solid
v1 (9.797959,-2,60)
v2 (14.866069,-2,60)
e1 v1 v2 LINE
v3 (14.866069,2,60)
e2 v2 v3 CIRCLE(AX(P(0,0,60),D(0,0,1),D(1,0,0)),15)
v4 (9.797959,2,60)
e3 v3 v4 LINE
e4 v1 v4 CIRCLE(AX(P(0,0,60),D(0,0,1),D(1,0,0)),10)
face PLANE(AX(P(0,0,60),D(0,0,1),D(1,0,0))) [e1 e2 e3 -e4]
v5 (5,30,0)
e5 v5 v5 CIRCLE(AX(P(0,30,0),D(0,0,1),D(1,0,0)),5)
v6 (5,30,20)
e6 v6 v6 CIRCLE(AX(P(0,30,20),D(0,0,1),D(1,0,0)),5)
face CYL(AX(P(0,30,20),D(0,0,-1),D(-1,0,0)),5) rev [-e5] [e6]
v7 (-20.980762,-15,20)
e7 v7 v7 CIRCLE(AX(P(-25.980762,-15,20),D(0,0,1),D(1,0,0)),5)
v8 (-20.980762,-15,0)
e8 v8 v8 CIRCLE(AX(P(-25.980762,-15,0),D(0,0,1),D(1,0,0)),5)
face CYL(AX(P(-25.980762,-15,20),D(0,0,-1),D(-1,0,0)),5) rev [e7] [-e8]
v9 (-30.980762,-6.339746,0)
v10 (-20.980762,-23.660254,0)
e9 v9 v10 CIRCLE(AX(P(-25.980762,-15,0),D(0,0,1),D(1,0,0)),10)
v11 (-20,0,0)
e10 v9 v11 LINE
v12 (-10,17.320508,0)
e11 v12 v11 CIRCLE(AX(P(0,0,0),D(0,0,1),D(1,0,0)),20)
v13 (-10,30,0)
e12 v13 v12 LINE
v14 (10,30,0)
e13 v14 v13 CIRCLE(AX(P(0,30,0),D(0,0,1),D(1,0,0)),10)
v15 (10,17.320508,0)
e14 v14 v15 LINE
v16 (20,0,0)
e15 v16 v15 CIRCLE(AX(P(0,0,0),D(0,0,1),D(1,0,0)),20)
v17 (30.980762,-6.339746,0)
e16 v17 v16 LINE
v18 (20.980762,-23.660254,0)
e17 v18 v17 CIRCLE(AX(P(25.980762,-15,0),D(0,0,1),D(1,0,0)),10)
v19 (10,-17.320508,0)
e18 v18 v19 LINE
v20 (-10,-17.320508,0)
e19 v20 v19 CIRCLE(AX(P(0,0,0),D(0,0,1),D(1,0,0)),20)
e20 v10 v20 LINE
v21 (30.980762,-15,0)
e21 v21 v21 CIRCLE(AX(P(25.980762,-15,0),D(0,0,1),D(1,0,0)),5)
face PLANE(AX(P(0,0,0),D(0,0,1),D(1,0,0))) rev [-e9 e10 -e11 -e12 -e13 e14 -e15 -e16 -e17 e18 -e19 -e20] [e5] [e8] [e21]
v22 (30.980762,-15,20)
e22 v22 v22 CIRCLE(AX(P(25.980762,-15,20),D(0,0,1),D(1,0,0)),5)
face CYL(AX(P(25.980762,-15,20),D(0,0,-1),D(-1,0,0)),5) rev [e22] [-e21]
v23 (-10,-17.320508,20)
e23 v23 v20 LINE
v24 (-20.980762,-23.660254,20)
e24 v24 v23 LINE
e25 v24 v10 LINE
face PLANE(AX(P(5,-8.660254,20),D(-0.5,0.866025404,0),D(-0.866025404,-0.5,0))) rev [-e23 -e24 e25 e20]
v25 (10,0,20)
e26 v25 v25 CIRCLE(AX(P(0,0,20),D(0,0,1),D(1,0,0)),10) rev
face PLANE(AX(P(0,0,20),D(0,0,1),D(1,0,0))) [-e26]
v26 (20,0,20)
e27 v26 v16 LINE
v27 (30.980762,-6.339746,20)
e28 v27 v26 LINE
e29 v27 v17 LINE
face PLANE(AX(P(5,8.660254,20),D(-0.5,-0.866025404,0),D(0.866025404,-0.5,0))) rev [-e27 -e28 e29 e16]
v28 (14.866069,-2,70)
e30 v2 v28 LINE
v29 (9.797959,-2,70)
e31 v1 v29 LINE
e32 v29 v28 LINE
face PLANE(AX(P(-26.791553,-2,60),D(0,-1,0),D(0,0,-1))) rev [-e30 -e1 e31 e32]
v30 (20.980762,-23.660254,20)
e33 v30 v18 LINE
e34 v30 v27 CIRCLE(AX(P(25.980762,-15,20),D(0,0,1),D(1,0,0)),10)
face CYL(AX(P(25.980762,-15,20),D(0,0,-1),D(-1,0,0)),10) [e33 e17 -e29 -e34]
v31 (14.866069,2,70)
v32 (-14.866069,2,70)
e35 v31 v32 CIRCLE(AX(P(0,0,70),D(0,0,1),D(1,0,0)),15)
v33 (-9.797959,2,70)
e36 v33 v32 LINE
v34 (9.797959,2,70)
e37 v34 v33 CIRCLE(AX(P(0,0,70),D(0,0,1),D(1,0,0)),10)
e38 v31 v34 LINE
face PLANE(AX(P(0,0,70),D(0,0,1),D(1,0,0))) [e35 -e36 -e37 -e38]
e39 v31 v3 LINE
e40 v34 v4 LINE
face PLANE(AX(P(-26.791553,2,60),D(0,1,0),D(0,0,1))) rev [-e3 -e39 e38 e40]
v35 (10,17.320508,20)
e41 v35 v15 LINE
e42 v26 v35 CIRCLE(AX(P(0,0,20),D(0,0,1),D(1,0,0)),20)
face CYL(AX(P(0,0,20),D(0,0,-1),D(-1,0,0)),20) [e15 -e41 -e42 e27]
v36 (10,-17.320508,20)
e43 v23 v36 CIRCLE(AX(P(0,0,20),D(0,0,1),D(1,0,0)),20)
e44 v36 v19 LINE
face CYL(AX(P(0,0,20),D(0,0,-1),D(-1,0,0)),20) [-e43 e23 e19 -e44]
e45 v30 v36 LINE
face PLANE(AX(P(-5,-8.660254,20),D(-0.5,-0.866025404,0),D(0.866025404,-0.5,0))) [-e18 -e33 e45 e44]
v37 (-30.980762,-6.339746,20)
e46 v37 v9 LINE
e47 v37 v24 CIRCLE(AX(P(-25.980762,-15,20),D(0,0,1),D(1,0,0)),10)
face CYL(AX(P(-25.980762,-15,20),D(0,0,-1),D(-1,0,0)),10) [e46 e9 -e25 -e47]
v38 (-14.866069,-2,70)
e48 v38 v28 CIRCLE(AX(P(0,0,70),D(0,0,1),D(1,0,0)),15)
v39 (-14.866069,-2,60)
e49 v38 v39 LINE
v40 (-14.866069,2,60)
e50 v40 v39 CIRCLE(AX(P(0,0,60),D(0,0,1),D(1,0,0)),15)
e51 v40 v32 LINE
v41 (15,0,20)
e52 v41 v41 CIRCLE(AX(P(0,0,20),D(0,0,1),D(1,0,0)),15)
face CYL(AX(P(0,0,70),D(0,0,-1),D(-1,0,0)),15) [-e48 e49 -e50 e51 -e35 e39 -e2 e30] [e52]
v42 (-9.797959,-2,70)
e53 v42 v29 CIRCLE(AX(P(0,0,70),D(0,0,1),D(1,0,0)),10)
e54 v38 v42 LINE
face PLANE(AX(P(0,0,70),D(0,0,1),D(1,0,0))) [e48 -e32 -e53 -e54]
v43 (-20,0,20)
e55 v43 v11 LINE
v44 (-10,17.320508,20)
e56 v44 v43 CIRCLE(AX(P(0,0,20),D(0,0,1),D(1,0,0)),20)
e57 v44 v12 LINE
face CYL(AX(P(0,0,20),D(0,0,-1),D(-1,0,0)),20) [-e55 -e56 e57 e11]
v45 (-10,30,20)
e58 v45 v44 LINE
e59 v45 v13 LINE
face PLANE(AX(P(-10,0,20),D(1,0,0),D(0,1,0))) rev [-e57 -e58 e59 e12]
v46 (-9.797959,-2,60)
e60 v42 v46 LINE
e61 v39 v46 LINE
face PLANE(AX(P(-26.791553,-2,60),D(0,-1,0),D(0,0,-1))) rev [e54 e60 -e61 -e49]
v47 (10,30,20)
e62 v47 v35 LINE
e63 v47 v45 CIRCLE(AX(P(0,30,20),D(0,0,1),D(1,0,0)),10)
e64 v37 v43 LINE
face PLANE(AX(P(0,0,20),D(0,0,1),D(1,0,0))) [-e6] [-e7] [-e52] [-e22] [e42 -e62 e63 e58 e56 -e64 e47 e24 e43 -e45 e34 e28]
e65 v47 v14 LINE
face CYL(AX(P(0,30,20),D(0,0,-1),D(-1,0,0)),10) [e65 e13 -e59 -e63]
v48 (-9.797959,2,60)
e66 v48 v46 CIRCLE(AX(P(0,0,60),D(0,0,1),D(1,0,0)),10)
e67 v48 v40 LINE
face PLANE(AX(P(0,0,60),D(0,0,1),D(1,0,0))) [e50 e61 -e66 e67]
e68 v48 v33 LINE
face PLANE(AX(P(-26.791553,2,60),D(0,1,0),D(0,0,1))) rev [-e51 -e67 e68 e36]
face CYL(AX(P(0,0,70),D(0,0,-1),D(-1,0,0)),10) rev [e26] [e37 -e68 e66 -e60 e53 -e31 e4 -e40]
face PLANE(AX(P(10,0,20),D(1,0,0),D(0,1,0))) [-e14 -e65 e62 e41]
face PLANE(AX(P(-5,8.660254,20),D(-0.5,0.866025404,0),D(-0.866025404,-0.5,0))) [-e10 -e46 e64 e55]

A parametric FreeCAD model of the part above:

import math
import FreeCAD as App
import Part
import Sketcher

V = App.Vector
Q = App.Units.Quantity


def add_polygon(sketch, points):
    """Adds a closed chain of lines whose ends are joined by coincident constraints."""
    first, n = sketch.GeometryCount, len(points)
    for a, b in zip(points, points[1:] + points[:1]):
        sketch.addGeometry(Part.LineSegment(App.Vector(*a, 0), App.Vector(*b, 0)), False)
    for i in range(n):
        sketch.addConstraint(Sketcher.Constraint("Coincident", first + i, 2, first + (i + 1) % n, 1))

doc = App.newDocument("Part")
body = doc.addObject("PartDesign::Body", "Body")

# Sketch on XY plane
sketch1 = doc.addObject("Sketcher::SketchObject", "Sketch")
body.addObject(sketch1)
sketch1.AttachmentSupport = (doc.XY_Plane, [""])
sketch1.MapMode = "FlatFace"
sketch1.addGeometry(Part.ArcOfCircle(Part.Circle(V(-26, -15, 0), V(0, 0, 1), 10), math.radians(120), math.radians(300)), False)
sketch1.addGeometry(Part.LineSegment(V(-21, -24, 0), V(-10, -17, 0)), False)
sketch1.addGeometry(Part.ArcOfCircle(Part.Circle(V(0, 0, 0), V(0, 0, 1), 20), math.radians(-120), math.radians(-60)), False)
sketch1.addGeometry(Part.LineSegment(V(10, -17, 0), V(21, -24, 0)), False)
sketch1.addGeometry(Part.ArcOfCircle(Part.Circle(V(26, -15, 0), V(0, 0, 1), 10), math.radians(-120), math.radians(60)), False)
sketch1.addGeometry(Part.LineSegment(V(31, -6, 0), V(20, 0, 0)), False)
sketch1.addGeometry(Part.ArcOfCircle(Part.Circle(V(0, 0, 0), V(0, 0, 1), 20), math.radians(0), math.radians(60)), False)
sketch1.addGeometry(Part.LineSegment(V(10, 17, 0), V(10, 30, 0)), False)
sketch1.addGeometry(Part.ArcOfCircle(Part.Circle(V(0, 30, 0), V(0, 0, 1), 10), math.radians(0), math.radians(180)), False)
sketch1.addGeometry(Part.LineSegment(V(-10, 30, 0), V(-10, 17, 0)), False)
sketch1.addGeometry(Part.ArcOfCircle(Part.Circle(V(0, 0, 0), V(0, 0, 1), 20), math.radians(120), math.radians(180)), False)
sketch1.addGeometry(Part.LineSegment(V(-20, 0, 0), V(-31, -6, 0)), False)
sketch1.addGeometry(Part.Circle(V(-26, -15, 0), V(0, 0, 1), 5), False)
sketch1.addGeometry(Part.Circle(V(26, -15, 0), V(0, 0, 1), 5), False)
sketch1.addGeometry(Part.Circle(V(0, 30, 0), V(0, 0, 1), 5), False)
sketch1.addConstraint(Sketcher.Constraint("Tangent", 0, 2, 1, 1))
sketch1.addConstraint(Sketcher.Constraint("Coincident", 1, 2, 2, 1))
sketch1.addConstraint(Sketcher.Constraint("Coincident", 2, 2, 3, 1))
sketch1.addConstraint(Sketcher.Constraint("Tangent", 3, 2, 4, 1))
sketch1.addConstraint(Sketcher.Constraint("Tangent", 4, 2, 5, 1))
sketch1.addConstraint(Sketcher.Constraint("Coincident", 5, 2, 6, 1))
sketch1.addConstraint(Sketcher.Constraint("Coincident", 6, 2, 7, 1))
sketch1.addConstraint(Sketcher.Constraint("Tangent", 7, 2, 8, 1))
sketch1.addConstraint(Sketcher.Constraint("Tangent", 8, 2, 9, 1))
sketch1.addConstraint(Sketcher.Constraint("Coincident", 9, 2, 10, 1))
sketch1.addConstraint(Sketcher.Constraint("Coincident", 10, 2, 11, 1))
sketch1.addConstraint(Sketcher.Constraint("Tangent", 11, 2, 0, 1))
sketch1.addConstraint(Sketcher.Constraint("Vertical", 7))
sketch1.addConstraint(Sketcher.Constraint("Vertical", 9))
sketch1.addConstraint(Sketcher.Constraint("Coincident", 2, 3, -1, 1))
sketch1.addConstraint(Sketcher.Constraint("Coincident", 6, 3, -1, 1))
sketch1.addConstraint(Sketcher.Constraint("Coincident", 10, 3, -1, 1))
sketch1.addConstraint(Sketcher.Constraint("Coincident", 12, 3, 0, 3))
sketch1.addConstraint(Sketcher.Constraint("Coincident", 13, 3, 4, 3))
sketch1.addConstraint(Sketcher.Constraint("Coincident", 14, 3, 8, 3))
sketch1.addConstraint(Sketcher.Constraint("Equal", 0, 4))
sketch1.addConstraint(Sketcher.Constraint("Equal", 2, 6))
sketch1.addConstraint(Sketcher.Constraint("Equal", 4, 8))
sketch1.addConstraint(Sketcher.Constraint("Equal", 6, 10))
sketch1.addConstraint(Sketcher.Constraint("Equal", 12, 13))
sketch1.addConstraint(Sketcher.Constraint("Equal", 13, 14))
sketch1.addConstraint(Sketcher.Constraint("Symmetric", 0, 3, 4, 3, -2))
sketch1.addConstraint(Sketcher.Constraint("PointOnObject", 8, 3, -2))
sketch1.addConstraint(Sketcher.Constraint("PointOnObject", 5, 2, -1))
sketch1.addConstraint(Sketcher.Constraint("PointOnObject", 10, 2, -1))
sketch1.addConstraint(Sketcher.Constraint("Parallel", 3, 5))
sketch1.addConstraint(Sketcher.Constraint("Parallel", 1, 11))
sketch1.addConstraint(Sketcher.Constraint("Vertical", 2, 2, 6, 2))
sketch1.addConstraint(Sketcher.Constraint("Equal", 3, 5))
sketch1.addConstraint(Sketcher.Constraint("Diameter", 12, Q("10 mm")))
sketch1.addConstraint(Sketcher.Constraint("Radius", 0, Q("10 mm")))
sketch1.addConstraint(Sketcher.Constraint("DistanceY", 0, 3, -1, 1, Q("15 mm")))
sketch1.addConstraint(Sketcher.Constraint("DistanceY", -1, 1, 8, 3, Q("30 mm")))
pad1 = doc.addObject("PartDesign::Pad", "Pad")
body.addObject(pad1)
pad1.Profile = sketch1
pad1.Length = 20

# Sketch on XY plane
sketch2 = doc.addObject("Sketcher::SketchObject", "Sketch001")
body.addObject(sketch2)
sketch2.AttachmentSupport = (doc.XY_Plane, [""])
sketch2.MapMode = "FlatFace"
sketch2.AttachmentOffset = App.Placement(V(0, 0, 20), App.Rotation())
sketch2.addGeometry(Part.Circle(V(0, 0, 0), V(0, 0, 1), 15), False)
sketch2.addGeometry(Part.Circle(V(0, 0, 0), V(0, 0, 1), 10), False)
sketch2.addConstraint(Sketcher.Constraint("Coincident", 0, 3, -1, 1))
sketch2.addConstraint(Sketcher.Constraint("Coincident", 1, 3, -1, 1))
sketch2.addConstraint(Sketcher.Constraint("Diameter", 0, Q("30 mm")))
sketch2.addConstraint(Sketcher.Constraint("Diameter", 1, Q("20 mm")))
pad2 = doc.addObject("PartDesign::Pad", "Pad001")
body.addObject(pad2)
pad2.Profile = sketch2
pad2.Length = 50

# Sketch on XY plane
sketch3 = doc.addObject("Sketcher::SketchObject", "Sketch002")
body.addObject(sketch3)
sketch3.AttachmentSupport = (doc.XY_Plane, [""])
sketch3.MapMode = "FlatFace"
sketch3.AttachmentOffset = App.Placement(V(0, 0, 70), App.Rotation())
add_polygon(sketch3, [(-26.8, 2), (-26.8, -2), (26.8, -2), (26.8, 2)])  # lines 0-3
sketch3.addConstraint(Sketcher.Constraint("Vertical", 0))
sketch3.addConstraint(Sketcher.Constraint("Horizontal", 1))
sketch3.addConstraint(Sketcher.Constraint("Vertical", 2))
sketch3.addConstraint(Sketcher.Constraint("Horizontal", 3))
sketch3.addConstraint(Sketcher.Constraint("Symmetric", 0, 2, 2, 2, -1, 1))
sketch3.addConstraint(Sketcher.Constraint("DistanceY", 0, 2, 0, 1, Q("4 mm")))
sketch3.addConstraint(Sketcher.Constraint("DistanceX", 1, 1, 1, 2, Q("53.583106 mm")))
pocket1 = doc.addObject("PartDesign::Pocket", "Pocket")
body.addObject(pocket1)
pocket1.Profile = sketch3
pocket1.Length = 10

doc.recompute()
